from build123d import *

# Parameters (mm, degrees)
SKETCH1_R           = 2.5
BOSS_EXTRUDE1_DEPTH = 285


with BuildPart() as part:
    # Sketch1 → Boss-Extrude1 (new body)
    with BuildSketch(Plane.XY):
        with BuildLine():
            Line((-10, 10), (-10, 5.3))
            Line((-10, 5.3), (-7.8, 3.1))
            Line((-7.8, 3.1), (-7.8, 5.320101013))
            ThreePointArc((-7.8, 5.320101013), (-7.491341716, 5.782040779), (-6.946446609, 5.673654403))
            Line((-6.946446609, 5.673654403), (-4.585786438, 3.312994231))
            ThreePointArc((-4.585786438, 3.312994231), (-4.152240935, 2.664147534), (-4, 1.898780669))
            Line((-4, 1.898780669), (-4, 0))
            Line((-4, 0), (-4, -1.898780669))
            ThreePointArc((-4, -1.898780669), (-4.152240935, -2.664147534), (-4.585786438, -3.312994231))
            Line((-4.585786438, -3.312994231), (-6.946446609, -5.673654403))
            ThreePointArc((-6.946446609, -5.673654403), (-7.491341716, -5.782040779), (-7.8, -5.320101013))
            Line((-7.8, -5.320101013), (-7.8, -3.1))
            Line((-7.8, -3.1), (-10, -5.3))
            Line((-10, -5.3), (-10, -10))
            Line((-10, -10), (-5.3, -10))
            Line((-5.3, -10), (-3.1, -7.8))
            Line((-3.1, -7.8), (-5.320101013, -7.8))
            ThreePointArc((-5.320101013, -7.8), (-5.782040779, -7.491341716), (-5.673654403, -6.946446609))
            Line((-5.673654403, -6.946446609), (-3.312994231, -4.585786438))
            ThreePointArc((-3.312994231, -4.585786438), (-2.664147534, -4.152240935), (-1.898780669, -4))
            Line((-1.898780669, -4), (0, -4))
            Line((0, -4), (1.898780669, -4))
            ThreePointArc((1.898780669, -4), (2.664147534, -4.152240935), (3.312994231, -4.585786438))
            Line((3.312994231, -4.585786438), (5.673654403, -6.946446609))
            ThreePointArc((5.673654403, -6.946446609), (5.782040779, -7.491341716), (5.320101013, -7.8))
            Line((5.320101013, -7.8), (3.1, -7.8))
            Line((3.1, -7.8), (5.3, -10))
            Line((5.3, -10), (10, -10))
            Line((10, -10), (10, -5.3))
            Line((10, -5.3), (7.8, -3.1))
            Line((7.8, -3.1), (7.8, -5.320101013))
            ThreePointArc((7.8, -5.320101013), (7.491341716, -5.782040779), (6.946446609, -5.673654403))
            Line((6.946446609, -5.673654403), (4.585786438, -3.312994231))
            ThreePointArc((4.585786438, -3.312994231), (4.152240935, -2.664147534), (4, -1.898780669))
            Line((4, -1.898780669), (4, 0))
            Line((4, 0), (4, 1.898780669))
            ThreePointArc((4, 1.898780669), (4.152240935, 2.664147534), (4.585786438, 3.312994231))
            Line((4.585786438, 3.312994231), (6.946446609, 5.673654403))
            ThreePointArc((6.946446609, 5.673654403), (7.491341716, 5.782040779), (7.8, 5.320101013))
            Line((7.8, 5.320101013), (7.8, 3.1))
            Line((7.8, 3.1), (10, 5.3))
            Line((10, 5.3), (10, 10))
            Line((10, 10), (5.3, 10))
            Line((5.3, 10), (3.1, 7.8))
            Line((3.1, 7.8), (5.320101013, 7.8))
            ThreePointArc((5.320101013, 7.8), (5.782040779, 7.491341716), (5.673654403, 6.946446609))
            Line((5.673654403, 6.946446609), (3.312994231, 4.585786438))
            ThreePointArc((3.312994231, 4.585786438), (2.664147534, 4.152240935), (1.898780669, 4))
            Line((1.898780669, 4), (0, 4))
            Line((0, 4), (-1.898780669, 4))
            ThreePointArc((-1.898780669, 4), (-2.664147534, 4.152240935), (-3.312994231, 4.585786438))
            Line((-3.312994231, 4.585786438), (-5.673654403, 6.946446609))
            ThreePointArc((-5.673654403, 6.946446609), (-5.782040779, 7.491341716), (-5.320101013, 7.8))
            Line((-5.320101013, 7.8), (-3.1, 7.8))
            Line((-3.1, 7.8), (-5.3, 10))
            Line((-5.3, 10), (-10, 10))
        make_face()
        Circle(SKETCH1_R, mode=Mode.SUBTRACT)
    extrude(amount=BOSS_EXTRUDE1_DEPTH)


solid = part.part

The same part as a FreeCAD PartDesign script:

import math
import FreeCAD as App
import Part
import Sketcher
from FreeCAD import Vector
Q = App.Units.Quantity

doc = App.newDocument("Part")
body = doc.addObject("PartDesign::Body", "Body")

# Sketch on XY plane
sketch1 = body.newObject("Sketcher::SketchObject", "Sketch")
sketch1.AttachmentSupport = (doc.getObject("XY_Plane"), [""])
sketch1.MapMode = "FlatFace"
sketch1.addGeometry(Part.LineSegment(Vector(-10, 10, 0), Vector(-10, 5.3, 0)), False)
sketch1.addGeometry(Part.LineSegment(Vector(-10, 5.3, 0), Vector(-7.8, 3.1, 0)), False)
sketch1.addGeometry(Part.LineSegment(Vector(-7.8, 3.1, 0), Vector(-7.8, 5.320101, 0)), False)
sketch1.addGeometry(Part.ArcOfCircle(Part.Circle(Vector(-7.3, 5.320101, 0), Vector(0, 0, 1), 0.5), math.radians(45), math.radians(180)), False)
sketch1.addGeometry(Part.LineSegment(Vector(-6.946447, 5.673654, 0), Vector(-4.585786, 3.312994, 0)), False)
sketch1.addGeometry(Part.ArcOfCircle(Part.Circle(Vector(-6, 1.898781, 0), Vector(0, 0, 1), 2), math.radians(0), math.radians(45)), False)
sketch1.addGeometry(Part.LineSegment(Vector(-4, 1.898781, 0), Vector(-4, -1.898781, 0)), False)
sketch1.addGeometry(Part.ArcOfCircle(Part.Circle(Vector(-6, -1.898781, 0), Vector(0, 0, 1), 2), math.radians(-45), math.radians(0)), False)
sketch1.addGeometry(Part.LineSegment(Vector(-4.585786, -3.312994, 0), Vector(-6.946447, -5.673654, 0)), False)
sketch1.addGeometry(Part.ArcOfCircle(Part.Circle(Vector(-7.3, -5.320101, 0), Vector(0, 0, 1), 0.5), math.radians(180), math.radians(315)), False)
sketch1.addGeometry(Part.LineSegment(Vector(-7.8, -5.320101, 0), Vector(-7.8, -3.1, 0)), False)
sketch1.addGeometry(Part.LineSegment(Vector(-7.8, -3.1, 0), Vector(-10, -5.3, 0)), False)
sketch1.addGeometry(Part.LineSegment(Vector(-10, -5.3, 0), Vector(-10, -10, 0)), False)
sketch1.addGeometry(Part.LineSegment(Vector(-10, -10, 0), Vector(-5.3, -10, 0)), False)
sketch1.addGeometry(Part.LineSegment(Vector(-5.3, -10, 0), Vector(-3.1, -7.8, 0)), False)
sketch1.addGeometry(Part.LineSegment(Vector(-3.1, -7.8, 0), Vector(-5.320101, -7.8, 0)), False)
sketch1.addGeometry(Part.ArcOfCircle(Part.Circle(Vector(-5.320101, -7.3, 0), Vector(0, 0, 1), 0.5), math.radians(135), math.radians(270)), False)
sketch1.addGeometry(Part.LineSegment(Vector(-5.673654, -6.946447, 0), Vector(-3.312994, -4.585786, 0)), False)
sketch1.addGeometry(Part.ArcOfCircle(Part.Circle(Vector(-1.898781, -6, 0), Vector(0, 0, 1), 2), math.radians(90), math.radians(135)), False)
sketch1.addGeometry(Part.LineSegment(Vector(-1.898781, -4, 0), Vector(1.898781, -4, 0)), False)
sketch1.addGeometry(Part.ArcOfCircle(Part.Circle(Vector(1.898781, -6, 0), Vector(0, 0, 1), 2), math.radians(45), math.radians(90)), False)
sketch1.addGeometry(Part.LineSegment(Vector(3.312994, -4.585786, 0), Vector(5.673654, -6.946447, 0)), False)
sketch1.addGeometry(Part.ArcOfCircle(Part.Circle(Vector(5.320101, -7.3, 0), Vector(0, 0, 1), 0.5), math.radians(-90), math.radians(45)), False)
sketch1.addGeometry(Part.LineSegment(Vector(5.320101, -7.8, 0), Vector(3.1, -7.8, 0)), False)
sketch1.addGeometry(Part.LineSegment(Vector(3.1, -7.8, 0), Vector(5.3, -10, 0)), False)
sketch1.addGeometry(Part.LineSegment(Vector(5.3, -10, 0), Vector(10, -10, 0)), False)
sketch1.addGeometry(Part.LineSegment(Vector(10, -10, 0), Vector(10, -5.3, 0)), False)
sketch1.addGeometry(Part.LineSegment(Vector(10, -5.3, 0), Vector(7.8, -3.1, 0)), False)
sketch1.addGeometry(Part.LineSegment(Vector(7.8, -3.1, 0), Vector(7.8, -5.320101, 0)), False)
sketch1.addGeometry(Part.ArcOfCircle(Part.Circle(Vector(7.3, -5.320101, 0), Vector(0, 0, 1), 0.5), math.radians(-135), math.radians(0)), False)
sketch1.addGeometry(Part.LineSegment(Vector(6.946447, -5.673654, 0), Vector(4.585786, -3.312994, 0)), False)
sketch1.addGeometry(Part.ArcOfCircle(Part.Circle(Vector(6, -1.898781, 0), Vector(0, 0, 1), 2), math.radians(180), math.radians(225)), False)
sketch1.addGeometry(Part.LineSegment(Vector(4, -1.898781, 0), Vector(4, 1.898781, 0)), False)
sketch1.addGeometry(Part.ArcOfCircle(Part.Circle(Vector(6, 1.898781, 0), Vector(0, 0, 1), 2), math.radians(135), math.radians(180)), False)
sketch1.addGeometry(Part.LineSegment(Vector(4.585786, 3.312994, 0), Vector(6.946447, 5.673654, 0)), False)
sketch1.addGeometry(Part.ArcOfCircle(Part.Circle(Vector(7.3, 5.320101, 0), Vector(0, 0, 1), 0.5), math.radians(0), math.radians(135)), False)
sketch1.addGeometry(Part.LineSegment(Vector(7.8, 5.320101, 0), Vector(7.8, 3.1, 0)), False)
sketch1.addGeometry(Part.LineSegment(Vector(7.8, 3.1, 0), Vector(10, 5.3, 0)), False)
sketch1.addGeometry(Part.LineSegment(Vector(10, 5.3, 0), Vector(10, 10, 0)), False)
sketch1.addGeometry(Part.LineSegment(Vector(10, 10, 0), Vector(5.3, 10, 0)), False)
sketch1.addGeometry(Part.LineSegment(Vector(5.3, 10, 0), Vector(3.1, 7.8, 0)), False)
sketch1.addGeometry(Part.LineSegment(Vector(3.1, 7.8, 0), Vector(5.320101, 7.8, 0)), False)
sketch1.addGeometry(Part.ArcOfCircle(Part.Circle(Vector(5.320101, 7.3, 0), Vector(0, 0, 1), 0.5), math.radians(-45), math.radians(90)), False)
sketch1.addGeometry(Part.LineSegment(Vector(5.673654, 6.946447, 0), Vector(3.312994, 4.585786, 0)), False)
sketch1.addGeometry(Part.ArcOfCircle(Part.Circle(Vector(1.898781, 6, 0), Vector(0, 0, 1), 2), math.radians(-90), math.radians(-45)), False)
sketch1.addGeometry(Part.LineSegment(Vector(1.898781, 4, 0), Vector(-1.898781, 4, 0)), False)
sketch1.addGeometry(Part.ArcOfCircle(Part.Circle(Vector(-1.898781, 6, 0), Vector(0, 0, 1), 2), math.radians(-135), math.radians(-90)), False)
sketch1.addGeometry(Part.LineSegment(Vector(-3.312994, 4.585786, 0), Vector(-5.673654, 6.946447, 0)), False)
sketch1.addGeometry(Part.ArcOfCircle(Part.Circle(Vector(-5.320101, 7.3, 0), Vector(0, 0, 1), 0.5), math.radians(90), math.radians(225)), False)
sketch1.addGeometry(Part.LineSegment(Vector(-5.320101, 7.8, 0), Vector(-3.1, 7.8, 0)), False)
sketch1.addGeometry(Part.LineSegment(Vector(-3.1, 7.8, 0), Vector(-5.3, 10, 0)), False)
sketch1.addGeometry(Part.LineSegment(Vector(-5.3, 10, 0), Vector(-10, 10, 0)), False)
sketch1.addGeometry(Part.Circle(Vector(0, 0, 0), Vector(0, 0, 1), 2.5), False)
sketch1.addConstraint(Sketcher.Constraint("Coincident", 0, 2, 1, 1))
sketch1.addConstraint(Sketcher.Constraint("Coincident", 1, 2, 2, 1))
sketch1.addConstraint(Sketcher.Constraint("Tangent", 2, 2, 3, 2))
sketch1.addConstraint(Sketcher.Constraint("Tangent", 3, 1, 4, 1))
sketch1.addConstraint(Sketcher.Constraint("Tangent", 4, 2, 5, 2))
sketch1.addConstraint(Sketcher.Constraint("Tangent", 5, 1, 6, 1))
sketch1.addConstraint(Sketcher.Constraint("Tangent", 6, 2, 7, 2))
sketch1.addConstraint(Sketcher.Constraint("Tangent", 7, 1, 8, 1))
sketch1.addConstraint(Sketcher.Constraint("Tangent", 8, 2, 9, 2))
sketch1.addConstraint(Sketcher.Constraint("Tangent", 9, 1, 10, 1))
sketch1.addConstraint(Sketcher.Constraint("Coincident", 10, 2, 11, 1))
sketch1.addConstraint(Sketcher.Constraint("Coincident", 11, 2, 12, 1))
sketch1.addConstraint(Sketcher.Constraint("Coincident", 12, 2, 13, 1))
sketch1.addConstraint(Sketcher.Constraint("Coincident", 13, 2, 14, 1))
sketch1.addConstraint(Sketcher.Constraint("Coincident", 14, 2, 15, 1))
sketch1.addConstraint(Sketcher.Constraint("Tangent", 15, 2, 16, 2))
sketch1.addConstraint(Sketcher.Constraint("Tangent", 16, 1, 17, 1))
sketch1.addConstraint(Sketcher.Constraint("Tangent", 17, 2, 18, 2))
sketch1.addConstraint(Sketcher.Constraint("Tangent", 18, 1, 19, 1))
sketch1.addConstraint(Sketcher.Constraint("Tangent", 19, 2, 20, 2))
sketch1.addConstraint(Sketcher.Constraint("Tangent", 20, 1, 21, 1))
sketch1.addConstraint(Sketcher.Constraint("Tangent", 21, 2, 22, 2))
sketch1.addConstraint(Sketcher.Constraint("Tangent", 22, 1, 23, 1))
sketch1.addConstraint(Sketcher.Constraint("Coincident", 23, 2, 24, 1))
sketch1.addConstraint(Sketcher.Constraint("Coincident", 24, 2, 25, 1))
sketch1.addConstraint(Sketcher.Constraint("Coincident", 25, 2, 26, 1))
sketch1.addConstraint(Sketcher.Constraint("Coincident", 26, 2, 27, 1))
sketch1.addConstraint(Sketcher.Constraint("Coincident", 27, 2, 28, 1))
sketch1.addConstraint(Sketcher.Constraint("Tangent", 28, 2, 29, 2))
sketch1.addConstraint(Sketcher.Constraint("Tangent", 29, 1, 30, 1))
sketch1.addConstraint(Sketcher.Constraint("Tangent", 30, 2, 31, 2))
sketch1.addConstraint(Sketcher.Constraint("Tangent", 31, 1, 32, 1))
sketch1.addConstraint(Sketcher.Constraint("Tangent", 32, 2, 33, 2))
sketch1.addConstraint(Sketcher.Constraint("Tangent", 33, 1, 34, 1))
sketch1.addConstraint(Sketcher.Constraint("Tangent", 34, 2, 35, 2))
sketch1.addConstraint(Sketcher.Constraint("Tangent", 35, 1, 36, 1))
sketch1.addConstraint(Sketcher.Constraint("Coincident", 36, 2, 37, 1))
sketch1.addConstraint(Sketcher.Constraint("Coincident", 37, 2, 38, 1))
sketch1.addConstraint(Sketcher.Constraint("Coincident", 38, 2, 39, 1))
sketch1.addConstraint(Sketcher.Constraint("Coincident", 39, 2, 40, 1))
sketch1.addConstraint(Sketcher.Constraint("Coincident", 40, 2, 41, 1))
sketch1.addConstraint(Sketcher.Constraint("Tangent", 41, 2, 42, 2))
sketch1.addConstraint(Sketcher.Constraint("Tangent", 42, 1, 43, 1))
sketch1.addConstraint(Sketcher.Constraint("Tangent", 43, 2, 44, 2))
sketch1.addConstraint(Sketcher.Constraint("Tangent", 44, 1, 45, 1))
sketch1.addConstraint(Sketcher.Constraint("Tangent", 45, 2, 46, 2))
sketch1.addConstraint(Sketcher.Constraint("Tangent", 46, 1, 47, 1))
sketch1.addConstraint(Sketcher.Constraint("Tangent", 47, 2, 48, 2))
sketch1.addConstraint(Sketcher.Constraint("Tangent", 48, 1, 49, 1))
sketch1.addConstraint(Sketcher.Constraint("Coincident", 49, 2, 50, 1))
sketch1.addConstraint(Sketcher.Constraint("Coincident", 50, 2, 51, 1))
sketch1.addConstraint(Sketcher.Constraint("Coincident", 51, 2, 0, 1))
sketch1.addConstraint(Sketcher.Constraint("Vertical", 0))
sketch1.addConstraint(Sketcher.Constraint("Vertical", 2))
sketch1.addConstraint(Sketcher.Constraint("Vertical", 6))
sketch1.addConstraint(Sketcher.Constraint("Vertical", 10))
sketch1.addConstraint(Sketcher.Constraint("Vertical", 12))
sketch1.addConstraint(Sketcher.Constraint("Horizontal", 13))
sketch1.addConstraint(Sketcher.Constraint("Horizontal", 15))
sketch1.addConstraint(Sketcher.Constraint("Horizontal", 19))
sketch1.addConstraint(Sketcher.Constraint("Horizontal", 23))
sketch1.addConstraint(Sketcher.Constraint("Horizontal", 25))
sketch1.addConstraint(Sketcher.Constraint("Vertical", 26))
sketch1.addConstraint(Sketcher.Constraint("Vertical", 28))
sketch1.addConstraint(Sketcher.Constraint("Vertical", 32))
sketch1.addConstraint(Sketcher.Constraint("Vertical", 36))
sketch1.addConstraint(Sketcher.Constraint("Vertical", 38))
sketch1.addConstraint(Sketcher.Constraint("Horizontal", 39))
sketch1.addConstraint(Sketcher.Constraint("Horizontal", 41))
sketch1.addConstraint(Sketcher.Constraint("Horizontal", 45))
sketch1.addConstraint(Sketcher.Constraint("Horizontal", 49))
sketch1.addConstraint(Sketcher.Constraint("Horizontal", 51))
sketch1.addConstraint(Sketcher.Constraint("Coincident", 52, 3, -1, 1))
sketch1.addConstraint(Sketcher.Constraint("Equal", 5, 7))
sketch1.addConstraint(Sketcher.Constraint("Equal", 3, 9))
sketch1.addConstraint(Sketcher.Constraint("Equal", 9, 16))
sketch1.addConstraint(Sketcher.Constraint("Equal", 7, 18))
sketch1.addConstraint(Sketcher.Constraint("Equal", 18, 20))
sketch1.addConstraint(Sketcher.Constraint("Equal", 16, 22))
sketch1.addConstraint(Sketcher.Constraint("Equal", 22, 29))
sketch1.addConstraint(Sketcher.Constraint("Equal", 20, 31))
sketch1.addConstraint(Sketcher.Constraint("Equal", 31, 33))
sketch1.addConstraint(Sketcher.Constraint("Equal", 29, 35))
sketch1.addConstraint(Sketcher.Constraint("Equal", 35, 42))
sketch1.addConstraint(Sketcher.Constraint("Equal", 33, 44))
sketch1.addConstraint(Sketcher.Constraint("Equal", 44, 46))
sketch1.addConstraint(Sketcher.Constraint("Equal", 42, 48))
sketch1.addConstraint(Sketcher.Constraint("Symmetric", 3, 3, 29, 3, -1, 1))
sketch1.addConstraint(Sketcher.Constraint("Symmetric", 5, 3, 31, 3, -1, 1))
sketch1.addConstraint(Sketcher.Constraint("Symmetric", 9, 3, 35, 3, -1, 1))
sketch1.addConstraint(Sketcher.Constraint("Symmetric", 16, 3, 42, 3, -1, 1))
sketch1.addConstraint(Sketcher.Constraint("Symmetric", 18, 3, 44, 3, -1, 1))
sketch1.addConstraint(Sketcher.Constraint("Symmetric", 22, 3, 48, 3, -1, 1))
sketch1.addConstraint(Sketcher.Constraint("Symmetric", 0, 2, 26, 2, -1, 1))
sketch1.addConstraint(Sketcher.Constraint("Symmetric", 11, 2, 37, 2, -1, 1))
sketch1.addConstraint(Sketcher.Constraint("Symmetric", 13, 2, 39, 2, -1, 1))
sketch1.addConstraint(Sketcher.Constraint("Symmetric", 24, 2, 50, 2, -1, 1))
sketch1.addConstraint(Sketcher.Constraint("Symmetric", 16, 3, 22, 3, -2))
sketch1.addConstraint(Sketcher.Constraint("Symmetric", 9, 3, 29, 3, -2))
sketch1.addConstraint(Sketcher.Constraint("Symmetric", 13, 2, 24, 2, -2))
sketch1.addConstraint(Sketcher.Constraint("Symmetric", 11, 2, 26, 2, -2))
sketch1.addConstraint(Sketcher.Constraint("Parallel", 1, 4))
sketch1.addConstraint(Sketcher.Constraint("Perpendicular", 4, 8))
sketch1.addConstraint(Sketcher.Constraint("Parallel", 8, 11))
sketch1.addConstraint(Sketcher.Constraint("Parallel", 11, 14))
sketch1.addConstraint(Sketcher.Constraint("Parallel", 14, 17))
sketch1.addConstraint(Sketcher.Constraint("Perpendicular", 17, 21))
sketch1.addConstraint(Sketcher.Constraint("Parallel", 21, 24))
sketch1.addConstraint(Sketcher.Constraint("Parallel", 24, 27))
sketch1.addConstraint(Sketcher.Constraint("Perpendicular", 30, 34))
sketch1.addConstraint(Sketcher.Constraint("Parallel", 34, 37))
sketch1.addConstraint(Sketcher.Constraint("Parallel", 37, 40))
sketch1.addConstraint(Sketcher.Constraint("Perpendicular", 43, 47))
sketch1.addConstraint(Sketcher.Constraint("Parallel", 47, 50))
sketch1.addConstraint(Sketcher.Constraint("Horizontal", 7, 3, 31, 3))
sketch1.addConstraint(Sketcher.Constraint("Equal", 51, 0))
sketch1.addConstraint(Sketcher.Constraint("Equal", 49, 2))
sketch1.addConstraint(Sketcher.Constraint("Equal", 45, 6))
sketch1.addConstraint(Sketcher.Constraint("Equal", 11, 14))
sketch1.addConstraint(Sketcher.Constraint("Equal", 8, 17))
sketch1.addConstraint(Sketcher.Constraint("Diameter", 52, Q("5 mm")))
sketch1.addConstraint(Sketcher.Constraint("Radius", 5, Q("2 mm")))
sketch1.addConstraint(Sketcher.Constraint("Radius", 3, Q("0.5 mm")))
sketch1.addConstraint(Sketcher.Constraint("DistanceX", 13, 1, 13, 2, Q("4.7 mm")))
sketch1.addConstraint(Sketcher.Constraint("DistanceX", 5, 3, -1, 1, Q("6 mm")))
sketch1.addConstraint(Sketcher.Constraint("DistanceX", 0, 2, -1, 1, Q("10 mm")))
sketch1.addConstraint(Sketcher.Constraint("DistanceX", 3, 3, -1, 1, Q("7.3 mm")))
sketch1.addConstraint(Sketcher.Constraint("DistanceX", 15, 2, 15, 1, Q("2.220101 mm")))
pad1 = body.newObject("PartDesign::Pad", "Pad")
pad1.Profile = sketch1
pad1.Length = 285

doc.recompute()
